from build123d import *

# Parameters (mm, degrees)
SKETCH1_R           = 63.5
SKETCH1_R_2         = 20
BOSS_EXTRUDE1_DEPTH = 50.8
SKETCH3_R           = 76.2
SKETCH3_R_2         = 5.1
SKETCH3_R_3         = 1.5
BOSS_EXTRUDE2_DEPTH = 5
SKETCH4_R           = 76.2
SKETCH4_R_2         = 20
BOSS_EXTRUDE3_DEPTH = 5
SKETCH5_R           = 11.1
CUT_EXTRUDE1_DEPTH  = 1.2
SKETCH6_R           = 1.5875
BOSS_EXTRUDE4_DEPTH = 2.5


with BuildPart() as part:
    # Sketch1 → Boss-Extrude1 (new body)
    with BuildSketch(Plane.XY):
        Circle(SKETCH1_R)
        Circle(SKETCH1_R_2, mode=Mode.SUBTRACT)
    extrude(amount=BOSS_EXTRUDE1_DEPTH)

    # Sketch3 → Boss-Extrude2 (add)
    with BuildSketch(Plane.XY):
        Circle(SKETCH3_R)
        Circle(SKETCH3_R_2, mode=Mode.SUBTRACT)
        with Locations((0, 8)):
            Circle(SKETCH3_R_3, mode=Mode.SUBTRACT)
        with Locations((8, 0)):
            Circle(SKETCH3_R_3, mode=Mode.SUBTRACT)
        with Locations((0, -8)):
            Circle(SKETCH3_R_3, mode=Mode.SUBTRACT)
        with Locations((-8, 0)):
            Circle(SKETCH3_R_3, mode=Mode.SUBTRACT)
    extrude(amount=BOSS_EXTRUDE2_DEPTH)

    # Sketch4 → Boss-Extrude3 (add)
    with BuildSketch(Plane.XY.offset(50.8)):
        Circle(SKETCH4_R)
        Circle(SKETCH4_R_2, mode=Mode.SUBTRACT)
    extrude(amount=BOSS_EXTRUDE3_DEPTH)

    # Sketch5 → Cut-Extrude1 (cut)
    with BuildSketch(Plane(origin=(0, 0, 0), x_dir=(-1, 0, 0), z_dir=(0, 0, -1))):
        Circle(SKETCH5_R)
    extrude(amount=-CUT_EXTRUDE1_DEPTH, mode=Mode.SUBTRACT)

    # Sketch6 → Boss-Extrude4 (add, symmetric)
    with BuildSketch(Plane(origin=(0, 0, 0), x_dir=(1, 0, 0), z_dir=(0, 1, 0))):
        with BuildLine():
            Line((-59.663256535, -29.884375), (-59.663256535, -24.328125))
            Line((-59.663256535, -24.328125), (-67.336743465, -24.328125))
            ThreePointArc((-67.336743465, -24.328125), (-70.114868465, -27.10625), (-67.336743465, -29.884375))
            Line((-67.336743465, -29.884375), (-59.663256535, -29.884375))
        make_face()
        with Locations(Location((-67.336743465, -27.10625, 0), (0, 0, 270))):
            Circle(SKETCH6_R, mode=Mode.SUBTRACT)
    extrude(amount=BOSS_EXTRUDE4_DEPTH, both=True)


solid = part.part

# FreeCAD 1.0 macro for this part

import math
import FreeCAD as App
import Part
import Sketcher
from FreeCAD import Vector

doc = App.newDocument("Part")
body = doc.addObject("PartDesign::Body", "Body")

# Sketch on XY plane
sketch1 = body.newObject("Sketcher::SketchObject", "Sketch")
sketch1.AttachmentSupport = (doc.getObject("XY_Plane"), [""])
sketch1.MapMode = "FlatFace"
sketch1.addGeometry([
    Part.Circle(Vector(0, 0, 0), Vector(0, 0, 1), 64),
    Part.Circle(Vector(0, 0, 0), Vector(0, 0, 1), 20),
], False)
sketch1.addConstraint([
    Sketcher.Constraint("Coincident", 0, 3, -1, 1),
    Sketcher.Constraint("Coincident", 1, 3, -1, 1),
    Sketcher.Constraint("Diameter", 0, 127.0),
    Sketcher.Constraint("Diameter", 1, 40.0),
])
pad1 = body.newObject("PartDesign::Pad", "Pad")
pad1.Profile = sketch1
pad1.Length = 50.8

# Sketch on XY plane
sketch2 = body.newObject("Sketcher::SketchObject", "Sketch001")
sketch2.AttachmentSupport = (doc.getObject("XY_Plane"), [""])
sketch2.MapMode = "FlatFace"
sketch2.addGeometry([
    Part.Circle(Vector(0, 0, 0), Vector(0, 0, 1), 76.2),  # 0
    Part.Circle(Vector(0, -8, 0), Vector(0, 0, 1), 1.5),  # 1
    Part.Circle(Vector(-8, 0, 0), Vector(0, 0, 1), 1.5),  # 2
    Part.Circle(Vector(0, 8, 0), Vector(0, 0, 1), 1.5),  # 3
    Part.Circle(Vector(0, 0, 0), Vector(0, 0, 1), 5.1),  # 4
    Part.Circle(Vector(8, 0, 0), Vector(0, 0, 1), 1.5),  # 5
], False)
sketch2.addConstraint([
    Sketcher.Constraint("Coincident", 0, 3, -1, 1),
    Sketcher.Constraint("Coincident", 4, 3, -1, 1),
    Sketcher.Constraint("Equal", 1, 2),
    Sketcher.Constraint("Equal", 2, 3),
    Sketcher.Constraint("Equal", 3, 5),
    Sketcher.Constraint("Symmetric", 1, 3, 3, 3, -1, 1),
    Sketcher.Constraint("Symmetric", 2, 3, 5, 3, -1, 1),
    Sketcher.Constraint("PointOnObject", 1, 3, -2),
    Sketcher.Constraint("PointOnObject", 2, 3, -1),
    Sketcher.Constraint("Diameter", 1, 3.0),
    Sketcher.Constraint("Diameter", 0, 152.4),
    Sketcher.Constraint("Diameter", 4, 10.2),
    Sketcher.Constraint("DistanceY", 1, 3, -1, 1, 8.0),
    Sketcher.Constraint("DistanceX", 2, 3, -1, 1, 8.0),
])
pad2 = body.newObject("PartDesign::Pad", "Pad001")
pad2.Profile = sketch2
pad2.Length = 5

# Sketch on XY plane
sketch3 = body.newObject("Sketcher::SketchObject", "Sketch002")
sketch3.AttachmentSupport = (doc.getObject("XY_Plane"), [""])
sketch3.MapMode = "FlatFace"
sketch3.AttachmentOffset = App.Placement(Vector(0, 0, 50.8), App.Rotation())
sketch3.addGeometry([
    Part.Circle(Vector(0, 0, 0), Vector(0, 0, 1), 76),
    Part.Circle(Vector(0, 0, 0), Vector(0, 0, 1), 20),
], False)
sketch3.addConstraint([
    Sketcher.Constraint("Coincident", 0, 3, -1, 1),
    Sketcher.Constraint("Coincident", 1, 3, -1, 1),
    Sketcher.Constraint("Diameter", 1, 40.0),
    Sketcher.Constraint("Diameter", 0, 152.4),
])
pad3 = body.newObject("PartDesign::Pad", "Pad002")
pad3.Profile = sketch3
pad3.Length = 5

# Sketch on XY plane
sketch4 = body.newObject("Sketcher::SketchObject", "Sketch003")
sketch4.AttachmentSupport = (doc.getObject("XY_Plane"), [""])
sketch4.MapMode = "FlatFace"
sketch4.addGeometry(Part.Circle(Vector(0, 0, 0), Vector(0, 0, 1), 11), False)
sketch4.addConstraint([
    Sketcher.Constraint("Coincident", 0, 3, -1, 1),
    Sketcher.Constraint("Diameter", 0, 22.2),
])
pocket1 = body.newObject("PartDesign::Pocket", "Pocket")
pocket1.Profile = sketch4
pocket1.Length = 1.2
pocket1.Reversed = True

# Sketch on XZ plane
sketch5 = body.newObject("Sketcher::SketchObject", "Sketch004")
sketch5.AttachmentSupport = (doc.getObject("XZ_Plane"), [""])
sketch5.MapMode = "FlatFace"
sketch5.addGeometry([
    Part.LineSegment(Vector(-59.7, 29.9, 0), Vector(-59.7, 24.3, 0)),  # 0
    Part.LineSegment(Vector(-59.7, 24.3, 0), Vector(-67.3, 24.3, 0)),  # 1
    Part.ArcOfCircle(Part.Circle(Vector(-67.3, 27.1, 0), Vector(0, 0, 1), 2.8), math.radians(90), math.radians(270)),  # 2
    Part.LineSegment(Vector(-67.3, 29.9, 0), Vector(-59.7, 29.9, 0)),  # 3
    Part.Circle(Vector(-67.3, 27.1, 0), Vector(0, 0, 1), 1.6),  # 4
], False)
sketch5.addConstraint([
    Sketcher.Constraint("Coincident", 0, 2, 1, 1),
    Sketcher.Constraint("Tangent", 1, 2, 2, 2),
    Sketcher.Constraint("Tangent", 2, 1, 3, 1),
    Sketcher.Constraint("Coincident", 3, 2, 0, 1),
    Sketcher.Constraint("Vertical", 0),
    Sketcher.Constraint("Horizontal", 1),
    Sketcher.Constraint("Horizontal", 3),
    Sketcher.Constraint("Coincident", 4, 3, 2, 3),
    Sketcher.Constraint("Diameter", 4, 3.175),
    Sketcher.Constraint("Radius", 2, 2.778125),
    Sketcher.Constraint("DistanceX", 1, 2, 1, 1, 7.673487),
    Sketcher.Constraint("DistanceY", -1, 1, 2, 3, 27.10625),
    Sketcher.Constraint("DistanceX", 2, 3, -1, 1, 67.336743),
])
pad4 = body.newObject("PartDesign::Pad", "Pad003")
pad4.Profile = sketch5
pad4.Length = 5
pad4.Midplane = True

doc.recompute()
